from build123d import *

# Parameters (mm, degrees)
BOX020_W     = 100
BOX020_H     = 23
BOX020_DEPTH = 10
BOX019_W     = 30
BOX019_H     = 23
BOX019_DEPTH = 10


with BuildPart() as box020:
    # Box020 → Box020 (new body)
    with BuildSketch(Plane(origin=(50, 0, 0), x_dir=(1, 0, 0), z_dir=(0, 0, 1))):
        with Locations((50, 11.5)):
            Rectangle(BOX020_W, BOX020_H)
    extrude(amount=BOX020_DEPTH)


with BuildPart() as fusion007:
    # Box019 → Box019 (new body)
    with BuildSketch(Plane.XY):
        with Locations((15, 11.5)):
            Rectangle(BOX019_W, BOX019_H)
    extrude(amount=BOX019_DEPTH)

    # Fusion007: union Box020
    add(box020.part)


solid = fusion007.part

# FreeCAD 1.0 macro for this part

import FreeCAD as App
import Part
import Sketcher
Q = App.Units.Quantity

doc = App.newDocument("Part")
body = doc.addObject("PartDesign::Body", "Body")

# Sketch on XY plane
sketch1 = doc.addObject("Sketcher::SketchObject", "Sketch")
body.addObject(sketch1)
sketch1.AttachmentSupport = (doc.XY_Plane, [""])
sketch1.MapMode = "FlatFace"
sketch1.addGeometry([
    Part.LineSegment(App.Vector(50, 23, 0), App.Vector(50, 0, 0)),
    Part.LineSegment(App.Vector(50, 0, 0), App.Vector(150, 0, 0)),
    Part.LineSegment(App.Vector(150, 0, 0), App.Vector(150, 23, 0)),
    Part.LineSegment(App.Vector(150, 23, 0), App.Vector(50, 23, 0)),
], False)
sketch1.addConstraint([
    Sketcher.Constraint("Coincident", 0, 2, 1, 1),
    Sketcher.Constraint("Coincident", 1, 2, 2, 1),
    Sketcher.Constraint("Coincident", 2, 2, 3, 1),
    Sketcher.Constraint("Coincident", 3, 2, 0, 1),
    Sketcher.Constraint("Vertical", 0),
    Sketcher.Constraint("Horizontal", 1),
    Sketcher.Constraint("Vertical", 2),
    Sketcher.Constraint("Horizontal", 3),
    Sketcher.Constraint("PointOnObject", 0, 2, -1),
    Sketcher.Constraint("DistanceX", 1, 1, 1, 2, Q("100 mm")),
    Sketcher.Constraint("DistanceY", 0, 2, 0, 1, Q("23 mm")),
    Sketcher.Constraint("DistanceX", -1, 1, 0, 2, Q("50 mm")),
])
pad1 = doc.addObject("PartDesign::Pad", "Pad")
body.addObject(pad1)
pad1.Profile = sketch1
pad1.Length = 10
body2 = doc.addObject("PartDesign::Body", "Body001")
body2.AllowCompound = True

# Sketch on XY plane
sketch2 = doc.addObject("Sketcher::SketchObject", "Sketch001")
body2.addObject(sketch2)
sketch2.AttachmentSupport = (doc.getObject("XY_Plane001"), [""])
sketch2.MapMode = "FlatFace"
sketch2.addGeometry([
    Part.LineSegment(App.Vector(0, 23, 0), App.Vector(0, 0, 0)),
    Part.LineSegment(App.Vector(0, 0, 0), App.Vector(30, 0, 0)),
    Part.LineSegment(App.Vector(30, 0, 0), App.Vector(30, 23, 0)),
    Part.LineSegment(App.Vector(30, 23, 0), App.Vector(0, 23, 0)),
], False)
sketch2.addConstraint([
    Sketcher.Constraint("Coincident", 0, 2, 1, 1),
    Sketcher.Constraint("Coincident", 1, 2, 2, 1),
    Sketcher.Constraint("Coincident", 2, 2, 3, 1),
    Sketcher.Constraint("Coincident", 3, 2, 0, 1),
    Sketcher.Constraint("Vertical", 0),
    Sketcher.Constraint("Horizontal", 1),
    Sketcher.Constraint("Vertical", 2),
    Sketcher.Constraint("Horizontal", 3),
    Sketcher.Constraint("Coincident", 0, 2, -1, 1),
    Sketcher.Constraint("DistanceX", 1, 1, 1, 2, Q("30 mm")),
    Sketcher.Constraint("DistanceY", 0, 2, 0, 1, Q("23 mm")),
])
pad2 = doc.addObject("PartDesign::Pad", "Pad001")
body2.addObject(pad2)
pad2.Profile = sketch2
pad2.Length = 10
doc.recompute()

boolean = doc.addObject("PartDesign::Boolean", "Boolean")
body2.addObject(boolean)
boolean.Type = "Fuse"
boolean.addObjects([body])

doc.recompute()
